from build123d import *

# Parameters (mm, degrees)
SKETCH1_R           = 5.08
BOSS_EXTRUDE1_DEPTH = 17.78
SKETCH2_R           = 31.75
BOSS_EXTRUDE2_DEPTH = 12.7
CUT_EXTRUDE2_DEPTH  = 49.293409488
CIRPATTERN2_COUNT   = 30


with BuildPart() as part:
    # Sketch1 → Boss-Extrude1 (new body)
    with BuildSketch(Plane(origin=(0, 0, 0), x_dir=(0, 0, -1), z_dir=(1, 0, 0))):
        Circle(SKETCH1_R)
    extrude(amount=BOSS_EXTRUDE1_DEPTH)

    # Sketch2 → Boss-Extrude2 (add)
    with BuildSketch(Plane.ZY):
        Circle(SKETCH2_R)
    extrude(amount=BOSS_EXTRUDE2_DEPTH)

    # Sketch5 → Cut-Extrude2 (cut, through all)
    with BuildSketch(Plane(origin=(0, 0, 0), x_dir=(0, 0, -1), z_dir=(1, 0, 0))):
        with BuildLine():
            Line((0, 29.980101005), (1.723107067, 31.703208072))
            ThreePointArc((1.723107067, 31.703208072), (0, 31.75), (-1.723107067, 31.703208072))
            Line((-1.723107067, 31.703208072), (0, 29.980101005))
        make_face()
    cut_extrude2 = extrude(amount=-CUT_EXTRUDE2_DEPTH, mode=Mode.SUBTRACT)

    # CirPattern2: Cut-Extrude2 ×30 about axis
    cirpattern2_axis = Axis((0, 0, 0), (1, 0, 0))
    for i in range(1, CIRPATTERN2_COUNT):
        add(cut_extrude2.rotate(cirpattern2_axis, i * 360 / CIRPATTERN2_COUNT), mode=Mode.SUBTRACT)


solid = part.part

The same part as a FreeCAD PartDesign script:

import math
import FreeCAD as App
import Part
import Sketcher

V = App.Vector
Q = App.Units.Quantity

doc = App.newDocument("Part")
body = doc.addObject("PartDesign::Body", "Body")

sketch1 = body.newObject("Sketcher::SketchObject", "Sketch")
sketch1.AttachmentSupport = (doc.getObject("YZ_Plane"), [""])
sketch1.MapMode = "FlatFace"
sketch1.addGeometry(Part.Circle(V(0, 0, 0), V(0, 0, 1), 5), False)
sketch1.addConstraint(Sketcher.Constraint("Coincident", 0, 3, -1, 1))
sketch1.addConstraint(Sketcher.Constraint("Diameter", 0, Q("0.4 in")))
pad1 = body.newObject("PartDesign::Pad", "Pad")
pad1.Profile = sketch1
pad1.Length = Q("0.7 in")

sketch2 = body.newObject("Sketcher::SketchObject", "Sketch001")
sketch2.AttachmentSupport = (doc.getObject("YZ_Plane"), [""])
sketch2.MapMode = "FlatFace"
sketch2.addGeometry(Part.Circle(V(0, 0, 0), V(0, 0, 1), 32), False)
sketch2.addConstraint(Sketcher.Constraint("Coincident", 0, 3, -1, 1))
sketch2.addConstraint(Sketcher.Constraint("Diameter", 0, Q("2.5 in")))
pad2 = body.newObject("PartDesign::Pad", "Pad001")
pad2.Profile = sketch2
pad2.Length = Q("0.5 in")
pad2.Reversed = True

sketch3 = body.newObject("Sketcher::SketchObject", "Sketch002")
sketch3.AttachmentSupport = (doc.getObject("YZ_Plane"), [""])
sketch3.MapMode = "FlatFace"
sketch3.addGeometry(Part.LineSegment(V(30, 0, 0), V(31.7, -1.7, 0)), False)
sketch3.addGeometry(Part.ArcOfCircle(Part.Circle(V(0, 0, 0), V(0, 0, 1), 31.8), math.radians(-3.11), math.radians(3.11)), False)
sketch3.addGeometry(Part.LineSegment(V(31.7, 1.7, 0), V(30, 0, 0)), False)
sketch3.addConstraint(Sketcher.Constraint("Coincident", 0, 2, 1, 1))
sketch3.addConstraint(Sketcher.Constraint("Coincident", 1, 2, 2, 1))
sketch3.addConstraint(Sketcher.Constraint("Coincident", 2, 2, 0, 1))
sketch3.addConstraint(Sketcher.Constraint("Coincident", 1, 3, -1, 1))
sketch3.addConstraint(Sketcher.Constraint("PointOnObject", 2, 2, -1))
sketch3.addConstraint(Sketcher.Constraint("Perpendicular", 0, 2))
sketch3.addConstraint(Sketcher.Constraint("Vertical", 0, 2, 1, 2))
sketch3.addConstraint(Sketcher.Constraint("Radius", 1, Q("1.25 in")))
sketch3.addConstraint(Sketcher.Constraint("DistanceX", -1, 1, 2, 2, Q("29.980101 mm")))
pocket1 = body.newObject("PartDesign::Pocket", "Pocket")
pocket1.Profile = sketch3
pocket1.Type = "ThroughAll"
doc.recompute()

polarpattern = body.newObject("PartDesign::PolarPattern", "PolarPattern")
polarpattern.Originals = [pocket1]
polarpattern.Axis = (doc.getObject("X_Axis"), [""])
polarpattern.Angle = 360
polarpattern.Occurrences = 30
body.Tip = polarpattern

doc.recompute()
